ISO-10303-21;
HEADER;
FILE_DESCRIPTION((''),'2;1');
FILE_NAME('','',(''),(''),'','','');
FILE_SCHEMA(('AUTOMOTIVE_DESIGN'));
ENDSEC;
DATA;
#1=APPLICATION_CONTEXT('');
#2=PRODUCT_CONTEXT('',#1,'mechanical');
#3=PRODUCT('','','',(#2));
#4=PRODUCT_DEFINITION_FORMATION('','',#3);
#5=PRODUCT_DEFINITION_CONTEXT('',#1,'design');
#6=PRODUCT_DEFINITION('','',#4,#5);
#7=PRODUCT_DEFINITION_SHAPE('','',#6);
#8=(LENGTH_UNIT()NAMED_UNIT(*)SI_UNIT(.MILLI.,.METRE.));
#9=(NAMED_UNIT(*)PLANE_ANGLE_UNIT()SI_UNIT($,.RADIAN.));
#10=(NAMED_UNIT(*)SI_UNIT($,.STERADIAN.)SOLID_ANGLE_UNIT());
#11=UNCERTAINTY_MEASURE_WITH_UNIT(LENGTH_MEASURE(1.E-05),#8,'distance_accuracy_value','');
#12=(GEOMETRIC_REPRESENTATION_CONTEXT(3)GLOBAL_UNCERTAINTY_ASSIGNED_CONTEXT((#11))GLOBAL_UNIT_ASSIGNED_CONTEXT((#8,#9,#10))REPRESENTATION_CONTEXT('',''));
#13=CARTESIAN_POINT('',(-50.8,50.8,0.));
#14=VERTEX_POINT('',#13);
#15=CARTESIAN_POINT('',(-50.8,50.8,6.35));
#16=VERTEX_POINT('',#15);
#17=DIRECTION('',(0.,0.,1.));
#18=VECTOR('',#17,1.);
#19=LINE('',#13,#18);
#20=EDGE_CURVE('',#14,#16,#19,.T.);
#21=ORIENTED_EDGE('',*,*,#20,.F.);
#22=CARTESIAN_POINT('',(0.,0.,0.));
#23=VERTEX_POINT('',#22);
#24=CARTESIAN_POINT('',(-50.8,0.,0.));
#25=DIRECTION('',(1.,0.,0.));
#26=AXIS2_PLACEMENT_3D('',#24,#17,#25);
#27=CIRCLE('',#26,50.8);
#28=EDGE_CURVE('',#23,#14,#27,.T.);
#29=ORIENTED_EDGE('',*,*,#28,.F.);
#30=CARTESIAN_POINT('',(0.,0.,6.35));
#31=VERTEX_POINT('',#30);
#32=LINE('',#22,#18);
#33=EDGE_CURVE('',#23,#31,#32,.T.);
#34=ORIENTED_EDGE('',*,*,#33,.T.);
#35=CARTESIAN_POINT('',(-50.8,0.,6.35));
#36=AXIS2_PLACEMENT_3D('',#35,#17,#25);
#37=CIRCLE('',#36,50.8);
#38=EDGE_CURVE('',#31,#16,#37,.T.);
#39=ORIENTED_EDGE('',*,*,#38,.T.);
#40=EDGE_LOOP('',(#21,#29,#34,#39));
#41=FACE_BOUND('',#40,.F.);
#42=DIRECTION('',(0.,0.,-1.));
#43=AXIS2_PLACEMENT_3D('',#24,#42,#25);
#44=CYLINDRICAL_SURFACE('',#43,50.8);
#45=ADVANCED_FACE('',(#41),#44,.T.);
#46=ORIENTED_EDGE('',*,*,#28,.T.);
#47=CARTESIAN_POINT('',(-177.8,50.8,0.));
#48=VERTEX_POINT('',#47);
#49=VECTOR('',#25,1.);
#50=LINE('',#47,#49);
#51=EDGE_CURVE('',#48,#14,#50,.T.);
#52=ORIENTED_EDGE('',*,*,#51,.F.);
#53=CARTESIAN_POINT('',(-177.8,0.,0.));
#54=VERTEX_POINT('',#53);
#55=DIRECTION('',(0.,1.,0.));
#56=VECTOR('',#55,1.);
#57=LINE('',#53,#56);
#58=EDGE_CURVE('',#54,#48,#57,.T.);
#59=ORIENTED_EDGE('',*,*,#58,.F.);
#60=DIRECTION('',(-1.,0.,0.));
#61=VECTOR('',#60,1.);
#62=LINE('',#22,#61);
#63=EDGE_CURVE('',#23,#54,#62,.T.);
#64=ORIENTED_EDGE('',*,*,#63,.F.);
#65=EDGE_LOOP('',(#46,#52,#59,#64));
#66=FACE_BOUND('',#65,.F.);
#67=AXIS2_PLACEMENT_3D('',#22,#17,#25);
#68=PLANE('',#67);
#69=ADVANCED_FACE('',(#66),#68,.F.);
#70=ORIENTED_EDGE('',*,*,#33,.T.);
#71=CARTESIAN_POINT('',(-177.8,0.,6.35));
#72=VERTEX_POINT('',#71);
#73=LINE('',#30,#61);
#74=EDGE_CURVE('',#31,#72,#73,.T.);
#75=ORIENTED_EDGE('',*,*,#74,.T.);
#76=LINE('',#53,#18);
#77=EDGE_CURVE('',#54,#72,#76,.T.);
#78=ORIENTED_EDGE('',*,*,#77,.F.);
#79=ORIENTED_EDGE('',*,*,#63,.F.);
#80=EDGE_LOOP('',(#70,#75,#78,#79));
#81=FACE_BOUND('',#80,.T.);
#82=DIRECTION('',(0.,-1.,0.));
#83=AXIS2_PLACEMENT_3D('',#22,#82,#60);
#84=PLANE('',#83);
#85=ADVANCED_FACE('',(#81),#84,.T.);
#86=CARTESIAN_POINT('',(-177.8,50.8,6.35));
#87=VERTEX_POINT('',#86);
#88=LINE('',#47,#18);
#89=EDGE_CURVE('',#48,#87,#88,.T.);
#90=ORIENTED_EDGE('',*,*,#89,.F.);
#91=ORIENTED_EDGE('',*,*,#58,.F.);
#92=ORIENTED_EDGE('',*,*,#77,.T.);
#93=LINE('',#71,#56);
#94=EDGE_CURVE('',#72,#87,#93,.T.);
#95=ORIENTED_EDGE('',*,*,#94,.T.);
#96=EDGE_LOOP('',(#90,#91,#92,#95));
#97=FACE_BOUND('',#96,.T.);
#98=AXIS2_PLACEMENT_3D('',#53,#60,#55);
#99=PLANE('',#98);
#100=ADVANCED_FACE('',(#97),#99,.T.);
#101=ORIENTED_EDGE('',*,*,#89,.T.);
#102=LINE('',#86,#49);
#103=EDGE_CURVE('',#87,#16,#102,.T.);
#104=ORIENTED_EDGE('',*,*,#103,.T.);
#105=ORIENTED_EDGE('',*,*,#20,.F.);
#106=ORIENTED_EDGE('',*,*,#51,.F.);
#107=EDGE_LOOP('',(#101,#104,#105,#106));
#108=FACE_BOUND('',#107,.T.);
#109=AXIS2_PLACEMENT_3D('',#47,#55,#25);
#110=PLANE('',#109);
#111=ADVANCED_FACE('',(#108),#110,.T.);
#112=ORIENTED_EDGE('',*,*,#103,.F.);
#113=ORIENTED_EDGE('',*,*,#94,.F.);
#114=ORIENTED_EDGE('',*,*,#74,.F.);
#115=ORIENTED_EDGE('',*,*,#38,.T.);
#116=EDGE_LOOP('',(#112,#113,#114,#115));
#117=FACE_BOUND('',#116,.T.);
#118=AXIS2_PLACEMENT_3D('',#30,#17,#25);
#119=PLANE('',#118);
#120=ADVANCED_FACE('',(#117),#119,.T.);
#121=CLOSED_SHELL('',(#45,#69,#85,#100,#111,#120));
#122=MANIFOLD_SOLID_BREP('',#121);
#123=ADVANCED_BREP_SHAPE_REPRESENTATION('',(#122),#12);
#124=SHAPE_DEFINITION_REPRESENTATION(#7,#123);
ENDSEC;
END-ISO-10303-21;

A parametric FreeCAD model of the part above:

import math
import FreeCAD as App
import Part
import Sketcher
from FreeCAD import Vector
Q = App.Units.Quantity

doc = App.newDocument("Part")
body = doc.addObject("PartDesign::Body", "Body")

sketch1 = doc.addObject("Sketcher::SketchObject", "Sketch")
body.addObject(sketch1)
sketch1.AttachmentSupport = (doc.XY_Plane, [""])
sketch1.MapMode = "FlatFace"
sketch1.addGeometry([
    Part.LineSegment(Vector(-178, 0, 0), Vector(0, 0, 0)),
    Part.ArcOfCircle(Part.Circle(Vector(-51, 0, 0), Vector(0, 0, 1), 51), math.radians(0), math.radians(90)),
    Part.LineSegment(Vector(-51, 51, 0), Vector(-178, 51, 0)),
    Part.LineSegment(Vector(-178, 51, 0), Vector(-178, 0, 0)),
], False)
sketch1.addConstraint([
    Sketcher.Constraint("Coincident", 0, 2, 1, 1),
    Sketcher.Constraint("Tangent", 1, 2, 2, 1),
    Sketcher.Constraint("Coincident", 2, 2, 3, 1),
    Sketcher.Constraint("Coincident", 3, 2, 0, 1),
    Sketcher.Constraint("Horizontal", 0),
    Sketcher.Constraint("Horizontal", 2),
    Sketcher.Constraint("Vertical", 3),
    Sketcher.Constraint("Coincident", 0, 2, -1, 1),
    Sketcher.Constraint("PointOnObject", 1, 3, -1),
    Sketcher.Constraint("Radius", 1, Q("2 in")),
    Sketcher.Constraint("DistanceX", 0, 1, 0, 2, Q("7 in")),
])
pad1 = doc.addObject("PartDesign::Pad", "Pad")
body.addObject(pad1)
pad1.Profile = sketch1
pad1.Length = Q("0.25 in")

doc.recompute()
